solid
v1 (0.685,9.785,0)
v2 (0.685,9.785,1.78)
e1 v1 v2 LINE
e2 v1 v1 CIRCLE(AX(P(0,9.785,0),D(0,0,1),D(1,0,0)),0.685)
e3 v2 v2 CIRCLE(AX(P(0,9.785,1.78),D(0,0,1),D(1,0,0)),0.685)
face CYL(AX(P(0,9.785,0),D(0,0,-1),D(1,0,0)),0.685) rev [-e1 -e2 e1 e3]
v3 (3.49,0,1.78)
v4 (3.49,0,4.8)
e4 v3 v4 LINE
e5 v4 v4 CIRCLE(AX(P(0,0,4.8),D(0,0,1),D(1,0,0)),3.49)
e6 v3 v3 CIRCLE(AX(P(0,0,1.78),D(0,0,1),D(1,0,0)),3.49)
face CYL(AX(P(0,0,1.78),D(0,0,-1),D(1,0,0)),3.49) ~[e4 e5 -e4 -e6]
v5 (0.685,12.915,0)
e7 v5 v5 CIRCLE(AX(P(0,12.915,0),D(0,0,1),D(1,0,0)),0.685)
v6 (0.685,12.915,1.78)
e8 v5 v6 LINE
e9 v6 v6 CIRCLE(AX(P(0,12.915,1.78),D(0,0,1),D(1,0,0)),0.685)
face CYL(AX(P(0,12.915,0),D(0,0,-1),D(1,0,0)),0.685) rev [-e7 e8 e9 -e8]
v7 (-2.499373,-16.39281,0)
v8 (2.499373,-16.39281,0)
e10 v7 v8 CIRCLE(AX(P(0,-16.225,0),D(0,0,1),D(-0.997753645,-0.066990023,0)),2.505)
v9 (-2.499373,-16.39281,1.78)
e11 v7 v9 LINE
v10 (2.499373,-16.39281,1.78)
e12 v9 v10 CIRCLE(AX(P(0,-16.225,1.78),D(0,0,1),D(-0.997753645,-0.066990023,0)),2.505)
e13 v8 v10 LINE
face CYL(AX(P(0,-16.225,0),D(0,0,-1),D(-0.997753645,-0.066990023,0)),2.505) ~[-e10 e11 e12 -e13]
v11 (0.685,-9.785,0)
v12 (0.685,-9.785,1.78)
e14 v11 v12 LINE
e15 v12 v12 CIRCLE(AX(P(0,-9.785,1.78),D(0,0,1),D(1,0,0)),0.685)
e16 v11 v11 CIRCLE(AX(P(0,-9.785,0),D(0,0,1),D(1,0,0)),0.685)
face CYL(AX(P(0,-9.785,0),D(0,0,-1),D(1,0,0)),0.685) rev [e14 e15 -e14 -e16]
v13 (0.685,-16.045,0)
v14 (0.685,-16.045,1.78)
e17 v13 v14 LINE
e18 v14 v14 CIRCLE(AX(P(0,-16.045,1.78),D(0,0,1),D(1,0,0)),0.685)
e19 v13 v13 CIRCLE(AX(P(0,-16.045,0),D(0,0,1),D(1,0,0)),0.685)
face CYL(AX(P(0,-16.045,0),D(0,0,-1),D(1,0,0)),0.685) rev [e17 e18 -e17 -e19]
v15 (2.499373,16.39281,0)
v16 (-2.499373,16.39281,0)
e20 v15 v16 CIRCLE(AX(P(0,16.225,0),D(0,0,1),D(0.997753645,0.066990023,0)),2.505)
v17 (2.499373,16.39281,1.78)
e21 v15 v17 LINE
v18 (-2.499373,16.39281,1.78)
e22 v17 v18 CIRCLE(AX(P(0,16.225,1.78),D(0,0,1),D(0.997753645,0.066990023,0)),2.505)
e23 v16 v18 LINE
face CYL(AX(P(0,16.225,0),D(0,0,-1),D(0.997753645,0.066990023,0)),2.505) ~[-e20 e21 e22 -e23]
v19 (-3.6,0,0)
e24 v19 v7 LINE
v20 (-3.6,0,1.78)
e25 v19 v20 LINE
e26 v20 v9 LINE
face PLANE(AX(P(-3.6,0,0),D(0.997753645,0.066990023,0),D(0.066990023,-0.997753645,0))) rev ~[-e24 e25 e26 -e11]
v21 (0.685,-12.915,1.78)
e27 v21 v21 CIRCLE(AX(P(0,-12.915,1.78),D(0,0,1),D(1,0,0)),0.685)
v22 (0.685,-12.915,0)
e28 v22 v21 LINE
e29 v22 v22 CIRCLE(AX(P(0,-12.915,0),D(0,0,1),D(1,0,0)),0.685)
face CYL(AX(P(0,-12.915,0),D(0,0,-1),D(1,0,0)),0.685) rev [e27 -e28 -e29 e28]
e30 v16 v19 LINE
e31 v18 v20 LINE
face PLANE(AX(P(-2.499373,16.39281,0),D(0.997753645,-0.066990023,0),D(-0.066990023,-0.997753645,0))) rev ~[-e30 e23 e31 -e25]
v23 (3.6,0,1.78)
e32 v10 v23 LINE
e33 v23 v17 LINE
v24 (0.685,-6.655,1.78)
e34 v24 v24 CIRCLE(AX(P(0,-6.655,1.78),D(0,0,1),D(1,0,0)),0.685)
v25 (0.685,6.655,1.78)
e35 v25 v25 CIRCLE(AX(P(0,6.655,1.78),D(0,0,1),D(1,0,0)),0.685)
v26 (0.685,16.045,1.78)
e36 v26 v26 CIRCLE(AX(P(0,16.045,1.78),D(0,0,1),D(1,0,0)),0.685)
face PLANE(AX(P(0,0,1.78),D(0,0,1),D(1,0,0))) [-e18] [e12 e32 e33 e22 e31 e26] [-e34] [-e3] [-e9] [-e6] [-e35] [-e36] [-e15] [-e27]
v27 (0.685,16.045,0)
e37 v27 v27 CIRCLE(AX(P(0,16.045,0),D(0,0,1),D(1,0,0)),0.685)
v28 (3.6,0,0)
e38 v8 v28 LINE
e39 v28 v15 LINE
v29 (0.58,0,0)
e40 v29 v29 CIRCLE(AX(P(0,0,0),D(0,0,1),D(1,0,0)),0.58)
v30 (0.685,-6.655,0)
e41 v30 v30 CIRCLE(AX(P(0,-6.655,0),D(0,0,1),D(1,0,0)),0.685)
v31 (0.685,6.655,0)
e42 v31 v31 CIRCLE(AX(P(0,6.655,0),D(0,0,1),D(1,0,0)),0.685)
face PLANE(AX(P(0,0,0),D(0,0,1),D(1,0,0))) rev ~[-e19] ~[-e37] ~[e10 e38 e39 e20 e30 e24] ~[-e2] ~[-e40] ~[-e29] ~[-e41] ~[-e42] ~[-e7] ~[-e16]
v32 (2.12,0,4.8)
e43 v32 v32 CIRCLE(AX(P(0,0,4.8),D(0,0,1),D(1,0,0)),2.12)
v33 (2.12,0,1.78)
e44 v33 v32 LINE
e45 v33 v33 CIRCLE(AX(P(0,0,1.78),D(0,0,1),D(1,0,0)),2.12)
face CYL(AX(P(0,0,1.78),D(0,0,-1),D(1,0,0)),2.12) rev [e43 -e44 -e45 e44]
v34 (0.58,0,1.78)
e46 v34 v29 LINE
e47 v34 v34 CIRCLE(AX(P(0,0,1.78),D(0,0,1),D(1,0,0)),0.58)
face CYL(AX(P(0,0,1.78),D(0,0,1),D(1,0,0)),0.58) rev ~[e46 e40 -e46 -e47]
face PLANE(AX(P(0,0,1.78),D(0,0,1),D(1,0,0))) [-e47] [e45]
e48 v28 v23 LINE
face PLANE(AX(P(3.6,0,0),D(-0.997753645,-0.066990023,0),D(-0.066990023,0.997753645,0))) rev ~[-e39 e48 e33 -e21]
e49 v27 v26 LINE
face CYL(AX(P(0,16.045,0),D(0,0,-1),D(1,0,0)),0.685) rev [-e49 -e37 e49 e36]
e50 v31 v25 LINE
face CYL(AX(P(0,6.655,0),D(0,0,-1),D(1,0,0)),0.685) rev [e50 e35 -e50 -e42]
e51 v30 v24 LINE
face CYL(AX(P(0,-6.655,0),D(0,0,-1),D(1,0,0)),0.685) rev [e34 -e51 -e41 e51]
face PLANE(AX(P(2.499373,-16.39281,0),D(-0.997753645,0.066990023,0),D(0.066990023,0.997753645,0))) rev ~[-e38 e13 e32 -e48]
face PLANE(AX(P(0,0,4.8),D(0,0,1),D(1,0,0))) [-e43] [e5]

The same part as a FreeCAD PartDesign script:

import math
import FreeCAD as App
import Part
import Sketcher

V = App.Vector
Q = App.Units.Quantity

doc = App.newDocument("Part")
body = doc.addObject("PartDesign::Body", "Body")

# Sketch on XY plane
sketch1 = doc.addObject("Sketcher::SketchObject", "Sketch")
body.addObject(sketch1)
sketch1.AttachmentSupport = (doc.XY_Plane, [""])
sketch1.MapMode = "FlatFace"
sketch1.addGeometry(Part.LineSegment(V(3.6, 0, 0), V(2.5, 16.4, 0)), False)
sketch1.addGeometry(Part.ArcOfCircle(Part.Circle(V(0, 16.2, 0), V(0, 0, 1), 2.5), math.radians(4), math.radians(176)), False)
sketch1.addGeometry(Part.LineSegment(V(-2.5, 16.4, 0), V(-3.6, 0, 0)), False)
sketch1.addGeometry(Part.LineSegment(V(-3.6, 0, 0), V(-2.5, -16.4, 0)), False)
sketch1.addGeometry(Part.ArcOfCircle(Part.Circle(V(0, -16.2, 0), V(0, 0, 1), 2.5), math.radians(-176), math.radians(-4)), False)
sketch1.addGeometry(Part.LineSegment(V(2.5, -16.4, 0), V(3.6, 0, 0)), False)
sketch1.addGeometry(Part.Circle(V(0, -16, 0), V(0, 0, 1), 0.7), False)
sketch1.addGeometry(Part.Circle(V(0, -12.9, 0), V(0, 0, 1), 0.7), False)
sketch1.addGeometry(Part.Circle(V(0, -9.8, 0), V(0, 0, 1), 0.7), False)
sketch1.addGeometry(Part.Circle(V(0, -6.7, 0), V(0, 0, 1), 0.7), False)
sketch1.addGeometry(Part.Circle(V(0, 6.7, 0), V(0, 0, 1), 0.7), False)
sketch1.addGeometry(Part.Circle(V(0, 9.8, 0), V(0, 0, 1), 0.7), False)
sketch1.addGeometry(Part.Circle(V(0, 12.9, 0), V(0, 0, 1), 0.7), False)
sketch1.addGeometry(Part.Circle(V(0, 16, 0), V(0, 0, 1), 0.7), False)
sketch1.addConstraint(Sketcher.Constraint("Tangent", 0, 2, 1, 1))
sketch1.addConstraint(Sketcher.Constraint("Tangent", 1, 2, 2, 1))
sketch1.addConstraint(Sketcher.Constraint("Coincident", 2, 2, 3, 1))
sketch1.addConstraint(Sketcher.Constraint("Tangent", 3, 2, 4, 1))
sketch1.addConstraint(Sketcher.Constraint("Tangent", 4, 2, 5, 1))
sketch1.addConstraint(Sketcher.Constraint("Coincident", 5, 2, 0, 1))
sketch1.addConstraint(Sketcher.Constraint("Equal", 1, 4))
sketch1.addConstraint(Sketcher.Constraint("Equal", 6, 7))
sketch1.addConstraint(Sketcher.Constraint("Equal", 7, 8))
sketch1.addConstraint(Sketcher.Constraint("Equal", 8, 9))
sketch1.addConstraint(Sketcher.Constraint("Equal", 9, 10))
sketch1.addConstraint(Sketcher.Constraint("Equal", 10, 11))
sketch1.addConstraint(Sketcher.Constraint("Equal", 11, 12))
sketch1.addConstraint(Sketcher.Constraint("Equal", 12, 13))
sketch1.addConstraint(Sketcher.Constraint("Symmetric", 1, 3, 4, 3, -1, 1))
sketch1.addConstraint(Sketcher.Constraint("Symmetric", 9, 3, 10, 3, -1, 1))
sketch1.addConstraint(Sketcher.Constraint("Symmetric", 8, 3, 11, 3, -1, 1))
sketch1.addConstraint(Sketcher.Constraint("Symmetric", 7, 3, 12, 3, -1, 1))
sketch1.addConstraint(Sketcher.Constraint("Symmetric", 6, 3, 13, 3, -1, 1))
sketch1.addConstraint(Sketcher.Constraint("Symmetric", 2, 2, 5, 2, -1, 1))
sketch1.addConstraint(Sketcher.Constraint("Symmetric", 0, 2, 1, 2, -2))
sketch1.addConstraint(Sketcher.Constraint("PointOnObject", 6, 3, -2))
sketch1.addConstraint(Sketcher.Constraint("PointOnObject", 7, 3, -2))
sketch1.addConstraint(Sketcher.Constraint("PointOnObject", 8, 3, -2))
sketch1.addConstraint(Sketcher.Constraint("PointOnObject", 9, 3, -2))
sketch1.addConstraint(Sketcher.Constraint("Diameter", 6, Q("1.37 mm")))
sketch1.addConstraint(Sketcher.Constraint("Radius", 1, Q("2.505 mm")))
sketch1.addConstraint(Sketcher.Constraint("DistanceX", 2, 2, -1, 1, Q("3.6 mm")))
sketch1.addConstraint(Sketcher.Constraint("DistanceY", 6, 3, 10, 3, Q("22.7 mm")))
sketch1.addConstraint(Sketcher.Constraint("DistanceY", 7, 3, 11, 3, Q("22.7 mm")))
sketch1.addConstraint(Sketcher.Constraint("DistanceY", 4, 3, 1, 3, Q("32.45 mm")))
sketch1.addConstraint(Sketcher.Constraint("DistanceY", 4, 3, 6, 3, Q("0.18 mm")))
sketch1.addConstraint(Sketcher.Constraint("DistanceY", 6, 3, 7, 3, Q("3.13 mm")))
pad1 = doc.addObject("PartDesign::Pad", "Pad")
body.addObject(pad1)
pad1.Profile = sketch1
pad1.Length = 1.78

# Sketch on XY plane
sketch2 = doc.addObject("Sketcher::SketchObject", "Sketch001")
body.addObject(sketch2)
sketch2.AttachmentSupport = (doc.XY_Plane, [""])
sketch2.MapMode = "FlatFace"
sketch2.AttachmentOffset = App.Placement(V(0, 0, 1.78), App.Rotation())
sketch2.addGeometry(Part.Circle(V(0, 0, 0), V(0, 0, 1), 3.5), False)
sketch2.addGeometry(Part.Circle(V(0, 0, 0), V(0, 0, 1), 2.1), False)
sketch2.addConstraint(Sketcher.Constraint("Coincident", 0, 3, -1, 1))
sketch2.addConstraint(Sketcher.Constraint("Coincident", 1, 3, -1, 1))
sketch2.addConstraint(Sketcher.Constraint("Diameter", 0, Q("6.98 mm")))
sketch2.addConstraint(Sketcher.Constraint("Diameter", 1, Q("4.24 mm")))
pad2 = doc.addObject("PartDesign::Pad", "Pad001")
body.addObject(pad2)
pad2.Profile = sketch2
pad2.Length = 3.02

# Sketch on XY plane
sketch3 = doc.addObject("Sketcher::SketchObject", "Sketch002")
body.addObject(sketch3)
sketch3.AttachmentSupport = (doc.XY_Plane, [""])
sketch3.MapMode = "FlatFace"
sketch3.AttachmentOffset = App.Placement(V(0, 0, 1.78), App.Rotation())
sketch3.addGeometry(Part.Circle(V(0, 0, 0), V(0, 0, 1), 0.6), False)
sketch3.addConstraint(Sketcher.Constraint("Coincident", 0, 3, -1, 1))
sketch3.addConstraint(Sketcher.Constraint("Diameter", 0, Q("1.16 mm")))
pocket1 = doc.addObject("PartDesign::Pocket", "Pocket")
body.addObject(pocket1)
pocket1.Profile = sketch3
pocket1.Type = "ThroughAll"

doc.recompute()
